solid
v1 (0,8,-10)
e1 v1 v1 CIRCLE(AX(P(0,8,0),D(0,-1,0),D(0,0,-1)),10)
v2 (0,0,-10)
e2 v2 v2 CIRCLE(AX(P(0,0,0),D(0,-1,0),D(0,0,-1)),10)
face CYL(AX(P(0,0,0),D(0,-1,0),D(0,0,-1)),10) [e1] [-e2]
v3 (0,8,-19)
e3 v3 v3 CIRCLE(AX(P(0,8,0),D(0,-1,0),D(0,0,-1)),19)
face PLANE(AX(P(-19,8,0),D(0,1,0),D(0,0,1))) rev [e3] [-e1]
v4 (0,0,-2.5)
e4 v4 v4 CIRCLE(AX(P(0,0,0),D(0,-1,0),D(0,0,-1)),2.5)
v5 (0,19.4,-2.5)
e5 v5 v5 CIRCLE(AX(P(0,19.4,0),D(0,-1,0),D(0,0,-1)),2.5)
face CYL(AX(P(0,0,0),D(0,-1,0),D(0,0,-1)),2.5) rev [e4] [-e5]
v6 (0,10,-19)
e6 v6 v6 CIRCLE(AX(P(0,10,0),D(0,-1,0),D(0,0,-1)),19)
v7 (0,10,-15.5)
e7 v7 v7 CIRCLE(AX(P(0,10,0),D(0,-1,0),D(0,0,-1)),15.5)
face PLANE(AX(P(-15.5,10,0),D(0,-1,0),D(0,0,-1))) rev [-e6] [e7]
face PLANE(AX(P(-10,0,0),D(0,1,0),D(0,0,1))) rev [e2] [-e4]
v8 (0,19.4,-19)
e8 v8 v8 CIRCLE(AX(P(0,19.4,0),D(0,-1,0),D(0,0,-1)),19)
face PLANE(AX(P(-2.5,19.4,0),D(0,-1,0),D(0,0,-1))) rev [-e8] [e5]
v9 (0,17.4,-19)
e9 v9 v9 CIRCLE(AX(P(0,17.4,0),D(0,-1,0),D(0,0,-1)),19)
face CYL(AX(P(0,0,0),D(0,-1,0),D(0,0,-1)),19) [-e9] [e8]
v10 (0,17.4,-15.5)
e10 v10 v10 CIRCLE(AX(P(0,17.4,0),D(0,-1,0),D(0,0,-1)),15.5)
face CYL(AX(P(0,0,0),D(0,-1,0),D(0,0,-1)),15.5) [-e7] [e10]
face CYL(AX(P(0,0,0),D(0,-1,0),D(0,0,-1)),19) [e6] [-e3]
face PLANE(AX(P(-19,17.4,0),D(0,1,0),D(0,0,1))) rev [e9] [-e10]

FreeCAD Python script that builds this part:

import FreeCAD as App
import Part
import Sketcher
from FreeCAD import Vector

doc = App.newDocument("Part")
body = doc.addObject("PartDesign::Body", "Body")

sketch1 = doc.addObject("Sketcher::SketchObject", "Sketch")
body.addObject(sketch1)
sketch1.AttachmentSupport = (doc.XY_Plane, [""])
sketch1.MapMode = "FlatFace"
sketch1.addGeometry(Part.LineSegment(Vector(-2.5, 19.4, 0), Vector(-19, 19.4, 0)), False)
sketch1.addGeometry(Part.LineSegment(Vector(-19, 19.4, 0), Vector(-19, 17.4, 0)), False)
sketch1.addGeometry(Part.LineSegment(Vector(-19, 17.4, 0), Vector(-15.5, 17.4, 0)), False)
sketch1.addGeometry(Part.LineSegment(Vector(-15.5, 17.4, 0), Vector(-15.5, 10, 0)), False)
sketch1.addGeometry(Part.LineSegment(Vector(-15.5, 10, 0), Vector(-19, 10, 0)), False)
sketch1.addGeometry(Part.LineSegment(Vector(-19, 10, 0), Vector(-19, 8, 0)), False)
sketch1.addGeometry(Part.LineSegment(Vector(-19, 8, 0), Vector(-10, 8, 0)), False)
sketch1.addGeometry(Part.LineSegment(Vector(-10, 8, 0), Vector(-10, 0, 0)), False)
sketch1.addGeometry(Part.LineSegment(Vector(-10, 0, 0), Vector(-2.5, 0, 0)), False)
sketch1.addGeometry(Part.LineSegment(Vector(-2.5, 0, 0), Vector(-2.5, 19.4, 0)), False)
sketch1.addConstraint(Sketcher.Constraint("Coincident", 0, 2, 1, 1))
sketch1.addConstraint(Sketcher.Constraint("Coincident", 1, 2, 2, 1))
sketch1.addConstraint(Sketcher.Constraint("Coincident", 2, 2, 3, 1))
sketch1.addConstraint(Sketcher.Constraint("Coincident", 3, 2, 4, 1))
sketch1.addConstraint(Sketcher.Constraint("Coincident", 4, 2, 5, 1))
sketch1.addConstraint(Sketcher.Constraint("Coincident", 5, 2, 6, 1))
sketch1.addConstraint(Sketcher.Constraint("Coincident", 6, 2, 7, 1))
sketch1.addConstraint(Sketcher.Constraint("Coincident", 7, 2, 8, 1))
sketch1.addConstraint(Sketcher.Constraint("Coincident", 8, 2, 9, 1))
sketch1.addConstraint(Sketcher.Constraint("Coincident", 9, 2, 0, 1))
sketch1.addConstraint(Sketcher.Constraint("Horizontal", 0))
sketch1.addConstraint(Sketcher.Constraint("Vertical", 1))
sketch1.addConstraint(Sketcher.Constraint("Horizontal", 2))
sketch1.addConstraint(Sketcher.Constraint("Vertical", 3))
sketch1.addConstraint(Sketcher.Constraint("Horizontal", 4))
sketch1.addConstraint(Sketcher.Constraint("Vertical", 5))
sketch1.addConstraint(Sketcher.Constraint("Horizontal", 6))
sketch1.addConstraint(Sketcher.Constraint("Vertical", 7))
sketch1.addConstraint(Sketcher.Constraint("Horizontal", 8))
sketch1.addConstraint(Sketcher.Constraint("Vertical", 9))
sketch1.addConstraint(Sketcher.Constraint("PointOnObject", 7, 2, -1))
sketch1.addConstraint(Sketcher.Constraint("Vertical", 1, 2, 4, 2))
sketch1.addConstraint(Sketcher.Constraint("Equal", 1, 5))
sketch1.addConstraint(Sketcher.Constraint("DistanceX", 6, 1, 6, 2, 9.0))
sketch1.addConstraint(Sketcher.Constraint("DistanceY", 1, 2, 1, 1, 2.0))
sketch1.addConstraint(Sketcher.Constraint("DistanceY", 7, 2, 7, 1, 8.0))
sketch1.addConstraint(Sketcher.Constraint("DistanceX", 0, 2, 0, 1, 16.5))
sketch1.addConstraint(Sketcher.Constraint("DistanceX", 2, 1, 2, 2, 3.5))
sketch1.addConstraint(Sketcher.Constraint("DistanceY", 3, 2, 3, 1, 7.4))
sketch1.addConstraint(Sketcher.Constraint("DistanceX", 0, 2, -1, 1, 19.0))
revolution = doc.addObject("PartDesign::Revolution", "Revolution")
body.addObject(revolution)
revolution.Profile = sketch1
revolution.ReferenceAxis = (sketch1, ["V_Axis"])
revolution.Angle = 360

doc.recompute()
